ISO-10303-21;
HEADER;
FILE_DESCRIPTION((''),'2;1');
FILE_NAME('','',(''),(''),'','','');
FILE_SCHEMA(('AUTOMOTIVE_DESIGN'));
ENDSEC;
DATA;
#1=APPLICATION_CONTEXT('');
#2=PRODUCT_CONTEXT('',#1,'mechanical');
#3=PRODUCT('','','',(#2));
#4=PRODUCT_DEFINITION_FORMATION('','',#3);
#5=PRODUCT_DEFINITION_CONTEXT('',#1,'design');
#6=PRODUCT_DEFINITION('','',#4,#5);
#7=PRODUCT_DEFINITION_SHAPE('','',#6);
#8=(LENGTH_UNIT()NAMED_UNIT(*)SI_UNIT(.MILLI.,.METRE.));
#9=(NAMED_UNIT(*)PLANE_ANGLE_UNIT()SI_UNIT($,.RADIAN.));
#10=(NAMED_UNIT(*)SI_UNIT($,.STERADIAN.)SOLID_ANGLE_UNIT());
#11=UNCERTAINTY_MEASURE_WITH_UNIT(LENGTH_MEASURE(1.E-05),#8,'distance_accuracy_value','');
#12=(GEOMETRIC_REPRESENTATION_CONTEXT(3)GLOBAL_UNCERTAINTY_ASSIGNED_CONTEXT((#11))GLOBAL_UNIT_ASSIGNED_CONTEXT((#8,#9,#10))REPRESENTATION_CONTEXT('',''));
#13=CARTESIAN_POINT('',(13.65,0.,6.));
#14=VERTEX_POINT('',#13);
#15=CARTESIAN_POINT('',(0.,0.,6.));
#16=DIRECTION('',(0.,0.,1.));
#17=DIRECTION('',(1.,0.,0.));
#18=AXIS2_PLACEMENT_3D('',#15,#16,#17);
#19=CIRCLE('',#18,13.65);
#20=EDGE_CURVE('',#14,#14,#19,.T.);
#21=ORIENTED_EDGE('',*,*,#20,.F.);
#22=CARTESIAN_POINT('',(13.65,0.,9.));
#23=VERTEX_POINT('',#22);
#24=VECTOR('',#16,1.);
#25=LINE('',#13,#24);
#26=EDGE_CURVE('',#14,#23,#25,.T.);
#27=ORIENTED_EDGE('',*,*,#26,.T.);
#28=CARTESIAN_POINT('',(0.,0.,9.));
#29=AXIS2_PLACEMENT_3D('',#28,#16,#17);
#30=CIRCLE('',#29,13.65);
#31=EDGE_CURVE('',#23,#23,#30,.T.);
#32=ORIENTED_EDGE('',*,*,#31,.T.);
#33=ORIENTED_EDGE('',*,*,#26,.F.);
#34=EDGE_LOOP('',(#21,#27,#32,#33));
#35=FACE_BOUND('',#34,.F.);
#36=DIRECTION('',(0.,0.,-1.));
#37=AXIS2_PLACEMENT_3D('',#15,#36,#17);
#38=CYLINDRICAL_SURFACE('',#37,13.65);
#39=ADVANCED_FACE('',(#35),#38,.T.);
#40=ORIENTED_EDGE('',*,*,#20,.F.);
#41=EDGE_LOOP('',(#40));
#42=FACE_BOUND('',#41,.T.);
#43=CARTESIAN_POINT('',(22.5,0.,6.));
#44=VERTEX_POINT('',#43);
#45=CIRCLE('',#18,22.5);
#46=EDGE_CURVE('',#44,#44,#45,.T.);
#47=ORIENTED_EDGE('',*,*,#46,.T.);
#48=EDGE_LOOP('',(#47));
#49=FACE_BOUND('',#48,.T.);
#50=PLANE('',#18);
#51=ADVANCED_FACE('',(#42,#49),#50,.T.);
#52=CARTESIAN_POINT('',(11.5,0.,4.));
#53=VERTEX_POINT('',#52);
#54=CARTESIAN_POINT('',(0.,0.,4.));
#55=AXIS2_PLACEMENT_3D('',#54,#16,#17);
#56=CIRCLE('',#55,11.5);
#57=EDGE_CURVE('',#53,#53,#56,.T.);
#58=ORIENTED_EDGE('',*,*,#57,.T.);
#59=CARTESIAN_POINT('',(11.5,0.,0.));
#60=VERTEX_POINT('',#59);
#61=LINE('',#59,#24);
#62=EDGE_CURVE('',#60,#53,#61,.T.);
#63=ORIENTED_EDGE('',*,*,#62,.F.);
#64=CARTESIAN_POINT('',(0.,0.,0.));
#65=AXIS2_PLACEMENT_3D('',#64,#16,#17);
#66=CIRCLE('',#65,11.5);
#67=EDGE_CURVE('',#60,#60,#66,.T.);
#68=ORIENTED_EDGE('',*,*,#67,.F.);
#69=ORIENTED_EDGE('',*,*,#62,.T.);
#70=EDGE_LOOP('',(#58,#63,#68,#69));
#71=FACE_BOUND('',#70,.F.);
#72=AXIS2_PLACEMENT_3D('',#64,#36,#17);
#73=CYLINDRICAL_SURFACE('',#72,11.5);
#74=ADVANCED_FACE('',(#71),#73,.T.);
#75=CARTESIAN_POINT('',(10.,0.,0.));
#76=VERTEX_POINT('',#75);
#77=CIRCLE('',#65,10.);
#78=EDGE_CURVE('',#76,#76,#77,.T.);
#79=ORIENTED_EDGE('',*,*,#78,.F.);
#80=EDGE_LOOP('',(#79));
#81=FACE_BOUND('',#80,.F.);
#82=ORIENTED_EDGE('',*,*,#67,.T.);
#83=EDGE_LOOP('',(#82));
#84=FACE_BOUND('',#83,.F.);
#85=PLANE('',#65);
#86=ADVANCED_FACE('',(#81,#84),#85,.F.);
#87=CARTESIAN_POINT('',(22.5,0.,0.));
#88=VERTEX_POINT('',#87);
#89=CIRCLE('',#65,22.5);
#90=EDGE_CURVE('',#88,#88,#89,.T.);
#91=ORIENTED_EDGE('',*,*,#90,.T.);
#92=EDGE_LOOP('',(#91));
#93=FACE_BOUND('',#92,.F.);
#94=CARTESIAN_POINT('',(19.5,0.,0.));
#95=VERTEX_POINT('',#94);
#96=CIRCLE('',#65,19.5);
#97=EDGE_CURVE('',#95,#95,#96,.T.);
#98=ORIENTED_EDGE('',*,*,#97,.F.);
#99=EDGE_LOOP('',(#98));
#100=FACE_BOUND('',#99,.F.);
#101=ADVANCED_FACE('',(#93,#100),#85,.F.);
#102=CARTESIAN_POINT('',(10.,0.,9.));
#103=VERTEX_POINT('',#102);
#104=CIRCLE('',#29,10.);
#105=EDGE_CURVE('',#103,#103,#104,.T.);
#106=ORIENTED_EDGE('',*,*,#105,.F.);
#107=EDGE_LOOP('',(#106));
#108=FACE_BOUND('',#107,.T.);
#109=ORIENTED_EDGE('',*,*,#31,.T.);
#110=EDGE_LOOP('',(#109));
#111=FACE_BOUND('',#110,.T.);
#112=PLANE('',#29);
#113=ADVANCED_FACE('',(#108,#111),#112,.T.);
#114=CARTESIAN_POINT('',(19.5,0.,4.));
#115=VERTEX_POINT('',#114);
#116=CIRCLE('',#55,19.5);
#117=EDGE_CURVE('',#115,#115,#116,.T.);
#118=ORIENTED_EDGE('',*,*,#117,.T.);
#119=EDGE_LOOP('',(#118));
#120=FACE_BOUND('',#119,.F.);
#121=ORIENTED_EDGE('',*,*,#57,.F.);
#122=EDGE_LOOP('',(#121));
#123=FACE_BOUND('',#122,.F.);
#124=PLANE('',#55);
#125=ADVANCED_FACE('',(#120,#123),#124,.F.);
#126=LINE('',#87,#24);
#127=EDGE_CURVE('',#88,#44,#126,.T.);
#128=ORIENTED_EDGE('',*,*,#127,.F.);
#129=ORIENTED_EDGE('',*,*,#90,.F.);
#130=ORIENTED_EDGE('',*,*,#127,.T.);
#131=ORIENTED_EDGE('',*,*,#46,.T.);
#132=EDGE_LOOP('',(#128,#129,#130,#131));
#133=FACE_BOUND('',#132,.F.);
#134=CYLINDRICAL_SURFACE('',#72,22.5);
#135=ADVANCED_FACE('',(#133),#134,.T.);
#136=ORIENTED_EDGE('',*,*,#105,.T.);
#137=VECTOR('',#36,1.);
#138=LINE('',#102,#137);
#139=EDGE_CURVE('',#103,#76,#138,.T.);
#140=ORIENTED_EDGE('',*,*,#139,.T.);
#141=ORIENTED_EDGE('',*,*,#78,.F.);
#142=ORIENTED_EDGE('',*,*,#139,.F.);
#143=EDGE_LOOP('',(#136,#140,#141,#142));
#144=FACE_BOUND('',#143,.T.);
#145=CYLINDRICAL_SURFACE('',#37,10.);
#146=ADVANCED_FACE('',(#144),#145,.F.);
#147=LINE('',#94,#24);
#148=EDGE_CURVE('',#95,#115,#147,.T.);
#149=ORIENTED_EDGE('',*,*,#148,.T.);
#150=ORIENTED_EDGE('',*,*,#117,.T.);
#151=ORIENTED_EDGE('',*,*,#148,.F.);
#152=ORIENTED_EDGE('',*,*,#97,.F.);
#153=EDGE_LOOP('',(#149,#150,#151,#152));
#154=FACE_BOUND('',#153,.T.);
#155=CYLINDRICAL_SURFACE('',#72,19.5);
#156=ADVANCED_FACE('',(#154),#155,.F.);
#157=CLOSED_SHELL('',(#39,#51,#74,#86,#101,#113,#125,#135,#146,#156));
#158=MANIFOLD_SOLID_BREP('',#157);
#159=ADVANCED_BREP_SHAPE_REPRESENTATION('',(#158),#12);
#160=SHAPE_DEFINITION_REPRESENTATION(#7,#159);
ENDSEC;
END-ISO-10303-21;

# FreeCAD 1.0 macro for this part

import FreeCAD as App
import Part
import Sketcher

V = App.Vector
Q = App.Units.Quantity

doc = App.newDocument("Part")
body = doc.addObject("PartDesign::Body", "Body")

sketch1 = body.newObject("Sketcher::SketchObject", "Sketch")
sketch1.AttachmentSupport = (doc.getObject("XY_Plane"), [""])
sketch1.MapMode = "FlatFace"
sketch1.addGeometry([
    Part.Circle(V(0, 0, 0), V(0, 0, 1), 22.5),
    Part.Circle(V(0, 0, 0), V(0, 0, 1), 10),
], False)
sketch1.addConstraint([
    Sketcher.Constraint("Coincident", 0, 3, -1, 1),
    Sketcher.Constraint("Coincident", 1, 3, -1, 1),
    Sketcher.Constraint("Diameter", 0, Q("45 mm")),
    Sketcher.Constraint("Diameter", 1, Q("20 mm")),
])
pad1 = body.newObject("PartDesign::Pad", "Pad")
pad1.Profile = sketch1
pad1.Length = 6

sketch2 = body.newObject("Sketcher::SketchObject", "Sketch001")
sketch2.AttachmentSupport = (doc.getObject("XY_Plane"), [""])
sketch2.MapMode = "FlatFace"
sketch2.AttachmentOffset = App.Placement(V(0, 0, 6), App.Rotation())
sketch2.addGeometry([
    Part.Circle(V(0, 0, 0), V(0, 0, 1), 13.65),
    Part.Circle(V(0, 0, 0), V(0, 0, 1), 10),
], False)
sketch2.addConstraint([
    Sketcher.Constraint("Coincident", 0, 3, -1, 1),
    Sketcher.Constraint("Coincident", 1, 3, -1, 1),
    Sketcher.Constraint("Diameter", 1, Q("20 mm")),
    Sketcher.Constraint("Diameter", 0, Q("27.3 mm")),
])
pad2 = body.newObject("PartDesign::Pad", "Pad001")
pad2.Profile = sketch2
pad2.Length = 3

sketch3 = body.newObject("Sketcher::SketchObject", "Sketch002")
sketch3.AttachmentSupport = (doc.getObject("XY_Plane"), [""])
sketch3.MapMode = "FlatFace"
sketch3.addGeometry([
    Part.Circle(V(0, 0, 0), V(0, 0, 1), 19.5),
    Part.Circle(V(0, 0, 0), V(0, 0, 1), 11.5),
], False)
sketch3.addConstraint([
    Sketcher.Constraint("Coincident", 0, 3, -1, 1),
    Sketcher.Constraint("Coincident", 1, 3, -1, 1),
    Sketcher.Constraint("Diameter", 0, Q("39 mm")),
    Sketcher.Constraint("Diameter", 1, Q("23 mm")),
])
pocket1 = body.newObject("PartDesign::Pocket", "Pocket")
pocket1.Profile = sketch3
pocket1.Length = 4
pocket1.Reversed = True

doc.recompute()
